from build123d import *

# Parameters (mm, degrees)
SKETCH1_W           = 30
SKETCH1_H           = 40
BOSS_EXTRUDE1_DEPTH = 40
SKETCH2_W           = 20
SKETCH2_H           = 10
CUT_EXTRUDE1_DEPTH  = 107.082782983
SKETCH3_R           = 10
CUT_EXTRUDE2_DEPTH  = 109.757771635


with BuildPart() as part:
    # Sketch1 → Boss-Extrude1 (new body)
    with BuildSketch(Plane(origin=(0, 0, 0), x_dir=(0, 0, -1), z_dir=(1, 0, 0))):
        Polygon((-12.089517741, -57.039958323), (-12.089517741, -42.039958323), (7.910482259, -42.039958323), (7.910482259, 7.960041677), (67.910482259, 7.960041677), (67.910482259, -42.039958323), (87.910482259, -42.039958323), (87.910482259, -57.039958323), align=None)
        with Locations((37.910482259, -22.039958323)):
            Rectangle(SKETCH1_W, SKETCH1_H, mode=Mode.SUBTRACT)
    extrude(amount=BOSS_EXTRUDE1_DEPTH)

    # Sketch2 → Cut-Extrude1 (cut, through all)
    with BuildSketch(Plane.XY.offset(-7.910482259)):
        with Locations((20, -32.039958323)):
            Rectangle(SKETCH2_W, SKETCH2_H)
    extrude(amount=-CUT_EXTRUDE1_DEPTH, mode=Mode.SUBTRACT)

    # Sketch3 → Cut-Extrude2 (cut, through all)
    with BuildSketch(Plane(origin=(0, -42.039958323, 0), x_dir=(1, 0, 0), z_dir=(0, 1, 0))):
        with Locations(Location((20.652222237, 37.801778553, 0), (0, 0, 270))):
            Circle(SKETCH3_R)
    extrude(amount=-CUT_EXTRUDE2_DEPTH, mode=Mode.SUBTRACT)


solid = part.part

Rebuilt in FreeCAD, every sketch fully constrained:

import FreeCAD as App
import Part
import Sketcher
from FreeCAD import Vector
Q = App.Units.Quantity


def add_polygon(sketch, points):
    """Adds a closed chain of lines whose ends are joined by coincident constraints."""
    first, n = sketch.GeometryCount, len(points)
    for a, b in zip(points, points[1:] + points[:1]):
        sketch.addGeometry(Part.LineSegment(App.Vector(*a, 0), App.Vector(*b, 0)), False)
    for i in range(n):
        sketch.addConstraint(Sketcher.Constraint("Coincident", first + i, 2, first + (i + 1) % n, 1))

doc = App.newDocument("Part")
body = doc.addObject("PartDesign::Body", "Body")

# Sketch on YZ plane
sketch1 = body.newObject("Sketcher::SketchObject", "Sketch")
sketch1.AttachmentSupport = (doc.getObject("YZ_Plane"), [""])
sketch1.MapMode = "FlatFace"
add_polygon(sketch1, [(-42, 12), (-57, 12), (-57, -88), (-42, -88), (-42, -68), (8, -68), (8, -8), (-42, -8)])  # lines 0-7
add_polygon(sketch1, [(-42, -23), (-2, -23), (-2, -53), (-42, -53)])  # lines 8-11
sketch1.addConstraint(Sketcher.Constraint("Horizontal", 0))
sketch1.addConstraint(Sketcher.Constraint("Vertical", 1))
sketch1.addConstraint(Sketcher.Constraint("Horizontal", 2))
sketch1.addConstraint(Sketcher.Constraint("Vertical", 3))
sketch1.addConstraint(Sketcher.Constraint("Horizontal", 4))
sketch1.addConstraint(Sketcher.Constraint("Vertical", 5))
sketch1.addConstraint(Sketcher.Constraint("Horizontal", 6))
sketch1.addConstraint(Sketcher.Constraint("Vertical", 7))
sketch1.addConstraint(Sketcher.Constraint("Horizontal", 8))
sketch1.addConstraint(Sketcher.Constraint("Vertical", 9))
sketch1.addConstraint(Sketcher.Constraint("Horizontal", 10))
sketch1.addConstraint(Sketcher.Constraint("Vertical", 11))
sketch1.addConstraint(Sketcher.Constraint("Vertical", 3, 2, 6, 2))
sketch1.addConstraint(Sketcher.Constraint("Vertical", 7, 2, 10, 2))
sketch1.addConstraint(Sketcher.Constraint("Equal", 3, 7))
sketch1.addConstraint(Sketcher.Constraint("DistanceX", 0, 2, 0, 1, Q("15 mm")))
sketch1.addConstraint(Sketcher.Constraint("DistanceX", 4, 1, 4, 2, Q("50 mm")))
sketch1.addConstraint(Sketcher.Constraint("DistanceX", 8, 1, 8, 2, Q("40 mm")))
sketch1.addConstraint(Sketcher.Constraint("DistanceY", 1, 2, 1, 1, Q("100 mm")))
sketch1.addConstraint(Sketcher.Constraint("DistanceY", 3, 1, 3, 2, Q("20 mm")))
sketch1.addConstraint(Sketcher.Constraint("DistanceY", 9, 2, 9, 1, Q("30 mm")))
sketch1.addConstraint(Sketcher.Constraint("DistanceY", 8, 2, 5, 2, Q("15 mm")))
sketch1.addConstraint(Sketcher.Constraint("DistanceX", 0, 2, -1, 1, Q("57.039958 mm")))
sketch1.addConstraint(Sketcher.Constraint("DistanceY", -1, 1, 0, 2, Q("12.089518 mm")))
pad1 = body.newObject("PartDesign::Pad", "Pad")
pad1.Profile = sketch1
pad1.Length = 40

# Sketch on XY plane
sketch2 = body.newObject("Sketcher::SketchObject", "Sketch001")
sketch2.AttachmentSupport = (doc.getObject("XY_Plane"), [""])
sketch2.MapMode = "FlatFace"
sketch2.AttachmentOffset = App.Placement(Vector(0, 0, -7.910482), App.Rotation())
add_polygon(sketch2, [(10, -27), (10, -37), (30, -37), (30, -27)])  # lines 0-3
sketch2.addConstraint(Sketcher.Constraint("Vertical", 0))
sketch2.addConstraint(Sketcher.Constraint("Horizontal", 1))
sketch2.addConstraint(Sketcher.Constraint("Vertical", 2))
sketch2.addConstraint(Sketcher.Constraint("Horizontal", 3))
sketch2.addConstraint(Sketcher.Constraint("DistanceX", 1, 1, 1, 2, Q("20 mm")))
sketch2.addConstraint(Sketcher.Constraint("DistanceY", 0, 2, 0, 1, Q("10 mm")))
sketch2.addConstraint(Sketcher.Constraint("DistanceX", -1, 1, 0, 2, Q("10 mm")))
sketch2.addConstraint(Sketcher.Constraint("DistanceY", 0, 2, -1, 1, Q("37.039958 mm")))
pocket1 = body.newObject("PartDesign::Pocket", "Pocket")
pocket1.Profile = sketch2
pocket1.Type = "ThroughAll"

# Sketch on XZ plane
sketch3 = body.newObject("Sketcher::SketchObject", "Sketch002")
sketch3.AttachmentSupport = (doc.getObject("XZ_Plane"), [""])
sketch3.MapMode = "FlatFace"
sketch3.AttachmentOffset = App.Placement(Vector(0, 0, 42.039958), App.Rotation())
sketch3.addGeometry(Part.Circle(Vector(21, -38, 0), Vector(0, 0, 1), 10), False)
sketch3.addConstraint(Sketcher.Constraint("Diameter", 0, Q("20 mm")))
sketch3.addConstraint(Sketcher.Constraint("DistanceY", 0, 3, -1, 1, Q("37.801779 mm")))
sketch3.addConstraint(Sketcher.Constraint("DistanceX", -1, 1, 0, 3, Q("20.652222 mm")))
pocket2 = body.newObject("PartDesign::Pocket", "Pocket001")
pocket2.Profile = sketch3
pocket2.Type = "ThroughAll"
pocket2.Reversed = True

doc.recompute()
